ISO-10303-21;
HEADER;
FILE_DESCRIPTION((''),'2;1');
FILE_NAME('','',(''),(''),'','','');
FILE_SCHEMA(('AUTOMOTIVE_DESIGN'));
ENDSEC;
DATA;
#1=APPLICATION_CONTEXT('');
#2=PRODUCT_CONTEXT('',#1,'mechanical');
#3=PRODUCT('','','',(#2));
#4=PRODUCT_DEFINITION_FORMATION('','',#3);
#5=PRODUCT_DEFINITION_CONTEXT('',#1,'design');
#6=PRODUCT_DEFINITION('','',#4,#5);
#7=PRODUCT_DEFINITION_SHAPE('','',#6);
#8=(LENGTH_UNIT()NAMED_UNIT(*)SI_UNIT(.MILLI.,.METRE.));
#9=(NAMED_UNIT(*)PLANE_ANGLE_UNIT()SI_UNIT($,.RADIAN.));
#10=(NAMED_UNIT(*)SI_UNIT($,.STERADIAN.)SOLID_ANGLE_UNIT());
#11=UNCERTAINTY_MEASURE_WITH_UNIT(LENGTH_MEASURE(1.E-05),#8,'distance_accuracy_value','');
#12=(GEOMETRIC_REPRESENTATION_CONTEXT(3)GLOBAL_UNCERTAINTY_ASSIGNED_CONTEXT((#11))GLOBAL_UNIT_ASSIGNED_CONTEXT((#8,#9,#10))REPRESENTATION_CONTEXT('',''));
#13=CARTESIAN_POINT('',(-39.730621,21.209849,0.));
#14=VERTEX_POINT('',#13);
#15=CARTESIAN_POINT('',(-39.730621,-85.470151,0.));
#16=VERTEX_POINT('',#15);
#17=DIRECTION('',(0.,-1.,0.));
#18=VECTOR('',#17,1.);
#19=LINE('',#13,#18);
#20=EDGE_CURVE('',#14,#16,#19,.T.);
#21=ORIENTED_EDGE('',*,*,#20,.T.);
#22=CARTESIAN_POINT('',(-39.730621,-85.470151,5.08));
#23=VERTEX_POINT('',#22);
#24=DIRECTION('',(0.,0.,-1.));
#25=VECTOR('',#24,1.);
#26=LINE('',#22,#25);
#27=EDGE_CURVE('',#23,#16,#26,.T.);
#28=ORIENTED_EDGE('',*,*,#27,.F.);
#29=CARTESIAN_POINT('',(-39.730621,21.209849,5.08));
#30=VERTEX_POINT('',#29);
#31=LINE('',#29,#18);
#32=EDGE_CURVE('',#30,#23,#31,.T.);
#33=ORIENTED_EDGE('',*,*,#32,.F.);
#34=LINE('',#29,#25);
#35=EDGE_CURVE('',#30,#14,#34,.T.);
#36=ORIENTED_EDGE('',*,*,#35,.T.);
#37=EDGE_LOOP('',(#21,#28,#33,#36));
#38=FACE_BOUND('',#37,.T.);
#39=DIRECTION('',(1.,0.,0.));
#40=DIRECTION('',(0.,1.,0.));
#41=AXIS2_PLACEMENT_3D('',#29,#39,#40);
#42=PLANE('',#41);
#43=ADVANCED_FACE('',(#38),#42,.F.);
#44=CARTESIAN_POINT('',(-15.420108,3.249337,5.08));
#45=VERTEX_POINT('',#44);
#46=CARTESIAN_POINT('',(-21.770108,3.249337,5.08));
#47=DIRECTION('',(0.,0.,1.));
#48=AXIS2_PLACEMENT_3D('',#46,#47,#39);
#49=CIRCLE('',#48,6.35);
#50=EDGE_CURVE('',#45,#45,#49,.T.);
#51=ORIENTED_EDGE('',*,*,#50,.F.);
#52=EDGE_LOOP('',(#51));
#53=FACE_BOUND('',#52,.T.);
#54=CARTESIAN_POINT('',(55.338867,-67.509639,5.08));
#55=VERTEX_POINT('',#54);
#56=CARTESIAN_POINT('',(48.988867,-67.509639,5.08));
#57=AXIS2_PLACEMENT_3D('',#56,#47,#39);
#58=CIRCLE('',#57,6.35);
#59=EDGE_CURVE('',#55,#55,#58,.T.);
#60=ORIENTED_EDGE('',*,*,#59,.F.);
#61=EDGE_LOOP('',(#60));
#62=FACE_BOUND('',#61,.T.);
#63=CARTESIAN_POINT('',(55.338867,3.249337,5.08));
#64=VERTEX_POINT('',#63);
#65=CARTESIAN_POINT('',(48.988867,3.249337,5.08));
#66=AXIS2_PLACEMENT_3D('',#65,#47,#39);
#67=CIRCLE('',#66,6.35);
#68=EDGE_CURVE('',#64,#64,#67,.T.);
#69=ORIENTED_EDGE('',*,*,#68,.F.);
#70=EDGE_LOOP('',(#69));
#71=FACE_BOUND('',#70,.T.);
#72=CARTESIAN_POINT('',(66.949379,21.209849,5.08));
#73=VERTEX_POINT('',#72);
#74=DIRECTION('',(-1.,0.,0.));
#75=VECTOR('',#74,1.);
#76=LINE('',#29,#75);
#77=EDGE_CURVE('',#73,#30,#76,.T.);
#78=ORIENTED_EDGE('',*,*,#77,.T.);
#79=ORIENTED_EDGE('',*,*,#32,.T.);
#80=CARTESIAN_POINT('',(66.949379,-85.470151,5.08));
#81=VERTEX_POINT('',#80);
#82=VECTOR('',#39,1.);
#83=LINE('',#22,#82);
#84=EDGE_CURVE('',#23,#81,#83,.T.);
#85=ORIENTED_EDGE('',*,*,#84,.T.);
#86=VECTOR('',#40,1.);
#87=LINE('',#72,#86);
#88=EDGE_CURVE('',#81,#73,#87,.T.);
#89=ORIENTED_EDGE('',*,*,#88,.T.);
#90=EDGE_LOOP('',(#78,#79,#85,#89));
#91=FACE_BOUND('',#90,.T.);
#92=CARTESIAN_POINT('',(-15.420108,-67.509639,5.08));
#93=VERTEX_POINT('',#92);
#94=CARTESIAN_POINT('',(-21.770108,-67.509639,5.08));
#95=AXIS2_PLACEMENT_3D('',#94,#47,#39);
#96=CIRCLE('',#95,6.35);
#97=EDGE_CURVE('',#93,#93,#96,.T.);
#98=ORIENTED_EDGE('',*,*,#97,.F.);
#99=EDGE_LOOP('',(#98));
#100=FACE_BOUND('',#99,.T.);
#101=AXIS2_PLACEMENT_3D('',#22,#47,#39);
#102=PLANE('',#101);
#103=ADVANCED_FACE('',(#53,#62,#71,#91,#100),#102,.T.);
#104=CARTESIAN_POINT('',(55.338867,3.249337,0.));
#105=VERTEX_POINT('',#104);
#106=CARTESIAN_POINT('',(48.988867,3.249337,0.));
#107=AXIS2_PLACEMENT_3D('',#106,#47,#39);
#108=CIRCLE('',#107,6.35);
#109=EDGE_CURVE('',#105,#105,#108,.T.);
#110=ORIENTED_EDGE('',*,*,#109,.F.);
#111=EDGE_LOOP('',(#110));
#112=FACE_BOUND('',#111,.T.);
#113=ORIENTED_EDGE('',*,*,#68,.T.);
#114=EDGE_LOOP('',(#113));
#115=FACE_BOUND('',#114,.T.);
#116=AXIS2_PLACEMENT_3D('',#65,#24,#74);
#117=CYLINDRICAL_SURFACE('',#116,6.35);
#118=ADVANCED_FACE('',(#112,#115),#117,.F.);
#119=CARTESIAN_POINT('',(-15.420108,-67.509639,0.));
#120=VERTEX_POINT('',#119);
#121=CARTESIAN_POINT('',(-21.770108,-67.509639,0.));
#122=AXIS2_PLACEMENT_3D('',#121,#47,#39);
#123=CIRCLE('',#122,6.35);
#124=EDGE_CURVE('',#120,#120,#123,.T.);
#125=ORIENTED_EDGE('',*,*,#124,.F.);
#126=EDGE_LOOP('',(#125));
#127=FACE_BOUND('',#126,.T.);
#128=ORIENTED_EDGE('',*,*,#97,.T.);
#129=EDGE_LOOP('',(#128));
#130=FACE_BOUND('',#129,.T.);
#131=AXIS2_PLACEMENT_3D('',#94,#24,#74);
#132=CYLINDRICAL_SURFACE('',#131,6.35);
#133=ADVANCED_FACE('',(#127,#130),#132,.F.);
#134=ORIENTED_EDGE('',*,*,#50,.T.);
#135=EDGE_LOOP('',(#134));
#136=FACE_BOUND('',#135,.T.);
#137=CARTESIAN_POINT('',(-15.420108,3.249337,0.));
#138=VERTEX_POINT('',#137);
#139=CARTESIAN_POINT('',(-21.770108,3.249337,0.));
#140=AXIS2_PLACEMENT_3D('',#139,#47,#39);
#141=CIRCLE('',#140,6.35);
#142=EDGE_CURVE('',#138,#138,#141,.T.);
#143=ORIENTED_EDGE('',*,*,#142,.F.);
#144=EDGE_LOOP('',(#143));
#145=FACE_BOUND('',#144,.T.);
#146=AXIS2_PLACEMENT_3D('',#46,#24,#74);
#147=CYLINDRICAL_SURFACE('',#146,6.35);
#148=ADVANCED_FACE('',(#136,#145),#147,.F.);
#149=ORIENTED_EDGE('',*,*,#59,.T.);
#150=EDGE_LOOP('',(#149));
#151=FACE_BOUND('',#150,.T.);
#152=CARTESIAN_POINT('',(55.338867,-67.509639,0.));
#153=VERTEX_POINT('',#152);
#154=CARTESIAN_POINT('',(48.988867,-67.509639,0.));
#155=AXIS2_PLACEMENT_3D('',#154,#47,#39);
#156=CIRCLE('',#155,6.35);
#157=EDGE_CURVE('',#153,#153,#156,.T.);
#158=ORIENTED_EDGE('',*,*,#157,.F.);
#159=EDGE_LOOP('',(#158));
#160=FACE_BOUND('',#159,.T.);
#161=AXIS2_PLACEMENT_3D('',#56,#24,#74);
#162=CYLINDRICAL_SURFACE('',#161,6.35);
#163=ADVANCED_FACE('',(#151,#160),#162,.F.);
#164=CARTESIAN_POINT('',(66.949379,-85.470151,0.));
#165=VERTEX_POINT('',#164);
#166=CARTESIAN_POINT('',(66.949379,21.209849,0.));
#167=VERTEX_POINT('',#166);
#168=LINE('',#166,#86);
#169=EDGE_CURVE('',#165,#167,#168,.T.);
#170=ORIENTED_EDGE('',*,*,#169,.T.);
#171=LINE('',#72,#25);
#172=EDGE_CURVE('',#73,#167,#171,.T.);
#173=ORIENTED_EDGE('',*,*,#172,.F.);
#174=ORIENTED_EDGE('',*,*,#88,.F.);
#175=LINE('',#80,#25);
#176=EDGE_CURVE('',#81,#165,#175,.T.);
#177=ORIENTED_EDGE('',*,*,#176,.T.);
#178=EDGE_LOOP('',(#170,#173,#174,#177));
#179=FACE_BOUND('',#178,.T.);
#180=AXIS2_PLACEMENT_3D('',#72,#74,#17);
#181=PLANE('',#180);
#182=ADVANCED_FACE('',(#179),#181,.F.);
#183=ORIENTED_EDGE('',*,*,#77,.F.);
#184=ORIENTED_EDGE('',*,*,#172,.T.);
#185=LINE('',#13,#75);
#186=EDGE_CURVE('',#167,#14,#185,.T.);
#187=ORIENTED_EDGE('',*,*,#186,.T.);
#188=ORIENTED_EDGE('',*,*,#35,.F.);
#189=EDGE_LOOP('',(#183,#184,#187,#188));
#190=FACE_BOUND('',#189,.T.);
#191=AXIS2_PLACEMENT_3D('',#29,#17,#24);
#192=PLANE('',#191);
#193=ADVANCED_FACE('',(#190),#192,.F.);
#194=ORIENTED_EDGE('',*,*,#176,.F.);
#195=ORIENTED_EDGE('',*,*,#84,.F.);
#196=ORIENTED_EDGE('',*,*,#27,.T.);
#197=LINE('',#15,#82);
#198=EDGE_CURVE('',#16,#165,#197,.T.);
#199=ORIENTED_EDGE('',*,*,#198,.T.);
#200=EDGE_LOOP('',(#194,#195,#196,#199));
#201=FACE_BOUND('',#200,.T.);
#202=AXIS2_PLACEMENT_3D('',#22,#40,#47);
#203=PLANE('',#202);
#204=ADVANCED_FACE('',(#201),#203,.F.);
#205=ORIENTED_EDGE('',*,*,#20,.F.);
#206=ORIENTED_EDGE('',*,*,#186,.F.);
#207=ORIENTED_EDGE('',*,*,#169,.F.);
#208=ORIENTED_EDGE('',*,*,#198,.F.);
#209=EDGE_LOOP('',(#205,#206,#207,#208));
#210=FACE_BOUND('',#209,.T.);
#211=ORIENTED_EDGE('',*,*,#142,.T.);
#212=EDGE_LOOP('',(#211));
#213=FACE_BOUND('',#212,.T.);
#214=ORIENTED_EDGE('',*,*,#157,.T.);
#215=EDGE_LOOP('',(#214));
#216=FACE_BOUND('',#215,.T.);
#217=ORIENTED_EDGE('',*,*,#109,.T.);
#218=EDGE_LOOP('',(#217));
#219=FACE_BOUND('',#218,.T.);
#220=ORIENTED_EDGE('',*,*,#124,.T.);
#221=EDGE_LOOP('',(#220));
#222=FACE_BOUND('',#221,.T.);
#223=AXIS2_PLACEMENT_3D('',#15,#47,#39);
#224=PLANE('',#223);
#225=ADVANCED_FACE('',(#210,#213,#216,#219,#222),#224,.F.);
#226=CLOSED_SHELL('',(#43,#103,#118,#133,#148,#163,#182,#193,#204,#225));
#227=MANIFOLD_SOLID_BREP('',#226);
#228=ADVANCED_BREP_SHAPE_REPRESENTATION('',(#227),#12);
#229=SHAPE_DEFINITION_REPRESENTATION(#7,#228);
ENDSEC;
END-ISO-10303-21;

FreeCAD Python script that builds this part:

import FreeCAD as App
import Part
import Sketcher

V = App.Vector
Q = App.Units.Quantity

doc = App.newDocument("Part")
params = doc.addObject("Spreadsheet::Sheet", "Params")
for row, (alias, value) in enumerate([
    ("sketch1_diameter", "0.5 in"),
    ("sketch1_width", "4.2 in"),
    ("pad1_length", "0.2 in"),
], start=1):
    params.set(f"A{row}", alias)
    params.set(f"B{row}", "=" + value)
    params.setAlias(f"B{row}", alias)

body = doc.addObject("PartDesign::Body", "Body")

# Sketch on XY plane
sketch1 = body.newObject("Sketcher::SketchObject", "Sketch")
sketch1.AttachmentSupport = (doc.getObject("XY_Plane"), [""])
sketch1.MapMode = "FlatFace"
sketch1.addGeometry(Part.LineSegment(V(-40, 21, 0), V(-40, -85, 0)), False)
sketch1.addGeometry(Part.LineSegment(V(-40, -85, 0), V(67, -85, 0)), False)
sketch1.addGeometry(Part.LineSegment(V(67, -85, 0), V(67, 21, 0)), False)
sketch1.addGeometry(Part.LineSegment(V(67, 21, 0), V(-40, 21, 0)), False)
sketch1.addGeometry(Part.Circle(V(-22, -68, 0), V(0, 0, 1), 6), False)
sketch1.addGeometry(Part.Circle(V(49, -68, 0), V(0, 0, 1), 6), False)
sketch1.addGeometry(Part.Circle(V(-22, 3, 0), V(0, 0, 1), 6), False)
sketch1.addGeometry(Part.Circle(V(49, 3, 0), V(0, 0, 1), 6), False)
sketch1.addConstraint(Sketcher.Constraint("Coincident", 0, 2, 1, 1))
sketch1.addConstraint(Sketcher.Constraint("Coincident", 1, 2, 2, 1))
sketch1.addConstraint(Sketcher.Constraint("Coincident", 2, 2, 3, 1))
sketch1.addConstraint(Sketcher.Constraint("Coincident", 3, 2, 0, 1))
sketch1.addConstraint(Sketcher.Constraint("Vertical", 0))
sketch1.addConstraint(Sketcher.Constraint("Horizontal", 1))
sketch1.addConstraint(Sketcher.Constraint("Vertical", 2))
sketch1.addConstraint(Sketcher.Constraint("Horizontal", 3))
sketch1.addConstraint(Sketcher.Constraint("Equal", 4, 5))
sketch1.addConstraint(Sketcher.Constraint("Equal", 5, 6))
sketch1.addConstraint(Sketcher.Constraint("Equal", 6, 7))
sketch1.addConstraint(Sketcher.Constraint("Horizontal", 4, 3, 5, 3))
sketch1.addConstraint(Sketcher.Constraint("Horizontal", 6, 3, 7, 3))
sketch1.addConstraint(Sketcher.Constraint("Vertical", 4, 3, 6, 3))
sketch1.addConstraint(Sketcher.Constraint("Vertical", 5, 3, 7, 3))
sketch1.addConstraint(Sketcher.Constraint("Equal", 3, 0))
sketch1.addConstraint(Sketcher.Constraint("Diameter", 4, Q("0.5 in")))
sketch1.addConstraint(Sketcher.Constraint("DistanceX", 1, 1, 1, 2, Q("4.2 in")))
sketch1.addConstraint(Sketcher.Constraint("DistanceX", 4, 3, -1, 1, 21.770108))
sketch1.addConstraint(Sketcher.Constraint("DistanceY", 4, 3, -1, 1, 67.509639))
sketch1.addConstraint(Sketcher.Constraint("DistanceX", 0, 2, -1, 1, 39.730621))
sketch1.addConstraint(Sketcher.Constraint("DistanceY", 0, 2, -1, 1, 85.470151))
sketch1.addConstraint(Sketcher.Constraint("DistanceX", -1, 1, 5, 3, 48.988867))
sketch1.addConstraint(Sketcher.Constraint("DistanceY", -1, 1, 6, 3, 3.249337))
sketch1.setExpression("Constraints[16]", "Params.sketch1_diameter")
sketch1.setExpression("Constraints[17]", "Params.sketch1_width")
pad1 = body.newObject("PartDesign::Pad", "Pad")
pad1.Profile = sketch1
pad1.setExpression("Length", "Params.pad1_length")

doc.recompute()
